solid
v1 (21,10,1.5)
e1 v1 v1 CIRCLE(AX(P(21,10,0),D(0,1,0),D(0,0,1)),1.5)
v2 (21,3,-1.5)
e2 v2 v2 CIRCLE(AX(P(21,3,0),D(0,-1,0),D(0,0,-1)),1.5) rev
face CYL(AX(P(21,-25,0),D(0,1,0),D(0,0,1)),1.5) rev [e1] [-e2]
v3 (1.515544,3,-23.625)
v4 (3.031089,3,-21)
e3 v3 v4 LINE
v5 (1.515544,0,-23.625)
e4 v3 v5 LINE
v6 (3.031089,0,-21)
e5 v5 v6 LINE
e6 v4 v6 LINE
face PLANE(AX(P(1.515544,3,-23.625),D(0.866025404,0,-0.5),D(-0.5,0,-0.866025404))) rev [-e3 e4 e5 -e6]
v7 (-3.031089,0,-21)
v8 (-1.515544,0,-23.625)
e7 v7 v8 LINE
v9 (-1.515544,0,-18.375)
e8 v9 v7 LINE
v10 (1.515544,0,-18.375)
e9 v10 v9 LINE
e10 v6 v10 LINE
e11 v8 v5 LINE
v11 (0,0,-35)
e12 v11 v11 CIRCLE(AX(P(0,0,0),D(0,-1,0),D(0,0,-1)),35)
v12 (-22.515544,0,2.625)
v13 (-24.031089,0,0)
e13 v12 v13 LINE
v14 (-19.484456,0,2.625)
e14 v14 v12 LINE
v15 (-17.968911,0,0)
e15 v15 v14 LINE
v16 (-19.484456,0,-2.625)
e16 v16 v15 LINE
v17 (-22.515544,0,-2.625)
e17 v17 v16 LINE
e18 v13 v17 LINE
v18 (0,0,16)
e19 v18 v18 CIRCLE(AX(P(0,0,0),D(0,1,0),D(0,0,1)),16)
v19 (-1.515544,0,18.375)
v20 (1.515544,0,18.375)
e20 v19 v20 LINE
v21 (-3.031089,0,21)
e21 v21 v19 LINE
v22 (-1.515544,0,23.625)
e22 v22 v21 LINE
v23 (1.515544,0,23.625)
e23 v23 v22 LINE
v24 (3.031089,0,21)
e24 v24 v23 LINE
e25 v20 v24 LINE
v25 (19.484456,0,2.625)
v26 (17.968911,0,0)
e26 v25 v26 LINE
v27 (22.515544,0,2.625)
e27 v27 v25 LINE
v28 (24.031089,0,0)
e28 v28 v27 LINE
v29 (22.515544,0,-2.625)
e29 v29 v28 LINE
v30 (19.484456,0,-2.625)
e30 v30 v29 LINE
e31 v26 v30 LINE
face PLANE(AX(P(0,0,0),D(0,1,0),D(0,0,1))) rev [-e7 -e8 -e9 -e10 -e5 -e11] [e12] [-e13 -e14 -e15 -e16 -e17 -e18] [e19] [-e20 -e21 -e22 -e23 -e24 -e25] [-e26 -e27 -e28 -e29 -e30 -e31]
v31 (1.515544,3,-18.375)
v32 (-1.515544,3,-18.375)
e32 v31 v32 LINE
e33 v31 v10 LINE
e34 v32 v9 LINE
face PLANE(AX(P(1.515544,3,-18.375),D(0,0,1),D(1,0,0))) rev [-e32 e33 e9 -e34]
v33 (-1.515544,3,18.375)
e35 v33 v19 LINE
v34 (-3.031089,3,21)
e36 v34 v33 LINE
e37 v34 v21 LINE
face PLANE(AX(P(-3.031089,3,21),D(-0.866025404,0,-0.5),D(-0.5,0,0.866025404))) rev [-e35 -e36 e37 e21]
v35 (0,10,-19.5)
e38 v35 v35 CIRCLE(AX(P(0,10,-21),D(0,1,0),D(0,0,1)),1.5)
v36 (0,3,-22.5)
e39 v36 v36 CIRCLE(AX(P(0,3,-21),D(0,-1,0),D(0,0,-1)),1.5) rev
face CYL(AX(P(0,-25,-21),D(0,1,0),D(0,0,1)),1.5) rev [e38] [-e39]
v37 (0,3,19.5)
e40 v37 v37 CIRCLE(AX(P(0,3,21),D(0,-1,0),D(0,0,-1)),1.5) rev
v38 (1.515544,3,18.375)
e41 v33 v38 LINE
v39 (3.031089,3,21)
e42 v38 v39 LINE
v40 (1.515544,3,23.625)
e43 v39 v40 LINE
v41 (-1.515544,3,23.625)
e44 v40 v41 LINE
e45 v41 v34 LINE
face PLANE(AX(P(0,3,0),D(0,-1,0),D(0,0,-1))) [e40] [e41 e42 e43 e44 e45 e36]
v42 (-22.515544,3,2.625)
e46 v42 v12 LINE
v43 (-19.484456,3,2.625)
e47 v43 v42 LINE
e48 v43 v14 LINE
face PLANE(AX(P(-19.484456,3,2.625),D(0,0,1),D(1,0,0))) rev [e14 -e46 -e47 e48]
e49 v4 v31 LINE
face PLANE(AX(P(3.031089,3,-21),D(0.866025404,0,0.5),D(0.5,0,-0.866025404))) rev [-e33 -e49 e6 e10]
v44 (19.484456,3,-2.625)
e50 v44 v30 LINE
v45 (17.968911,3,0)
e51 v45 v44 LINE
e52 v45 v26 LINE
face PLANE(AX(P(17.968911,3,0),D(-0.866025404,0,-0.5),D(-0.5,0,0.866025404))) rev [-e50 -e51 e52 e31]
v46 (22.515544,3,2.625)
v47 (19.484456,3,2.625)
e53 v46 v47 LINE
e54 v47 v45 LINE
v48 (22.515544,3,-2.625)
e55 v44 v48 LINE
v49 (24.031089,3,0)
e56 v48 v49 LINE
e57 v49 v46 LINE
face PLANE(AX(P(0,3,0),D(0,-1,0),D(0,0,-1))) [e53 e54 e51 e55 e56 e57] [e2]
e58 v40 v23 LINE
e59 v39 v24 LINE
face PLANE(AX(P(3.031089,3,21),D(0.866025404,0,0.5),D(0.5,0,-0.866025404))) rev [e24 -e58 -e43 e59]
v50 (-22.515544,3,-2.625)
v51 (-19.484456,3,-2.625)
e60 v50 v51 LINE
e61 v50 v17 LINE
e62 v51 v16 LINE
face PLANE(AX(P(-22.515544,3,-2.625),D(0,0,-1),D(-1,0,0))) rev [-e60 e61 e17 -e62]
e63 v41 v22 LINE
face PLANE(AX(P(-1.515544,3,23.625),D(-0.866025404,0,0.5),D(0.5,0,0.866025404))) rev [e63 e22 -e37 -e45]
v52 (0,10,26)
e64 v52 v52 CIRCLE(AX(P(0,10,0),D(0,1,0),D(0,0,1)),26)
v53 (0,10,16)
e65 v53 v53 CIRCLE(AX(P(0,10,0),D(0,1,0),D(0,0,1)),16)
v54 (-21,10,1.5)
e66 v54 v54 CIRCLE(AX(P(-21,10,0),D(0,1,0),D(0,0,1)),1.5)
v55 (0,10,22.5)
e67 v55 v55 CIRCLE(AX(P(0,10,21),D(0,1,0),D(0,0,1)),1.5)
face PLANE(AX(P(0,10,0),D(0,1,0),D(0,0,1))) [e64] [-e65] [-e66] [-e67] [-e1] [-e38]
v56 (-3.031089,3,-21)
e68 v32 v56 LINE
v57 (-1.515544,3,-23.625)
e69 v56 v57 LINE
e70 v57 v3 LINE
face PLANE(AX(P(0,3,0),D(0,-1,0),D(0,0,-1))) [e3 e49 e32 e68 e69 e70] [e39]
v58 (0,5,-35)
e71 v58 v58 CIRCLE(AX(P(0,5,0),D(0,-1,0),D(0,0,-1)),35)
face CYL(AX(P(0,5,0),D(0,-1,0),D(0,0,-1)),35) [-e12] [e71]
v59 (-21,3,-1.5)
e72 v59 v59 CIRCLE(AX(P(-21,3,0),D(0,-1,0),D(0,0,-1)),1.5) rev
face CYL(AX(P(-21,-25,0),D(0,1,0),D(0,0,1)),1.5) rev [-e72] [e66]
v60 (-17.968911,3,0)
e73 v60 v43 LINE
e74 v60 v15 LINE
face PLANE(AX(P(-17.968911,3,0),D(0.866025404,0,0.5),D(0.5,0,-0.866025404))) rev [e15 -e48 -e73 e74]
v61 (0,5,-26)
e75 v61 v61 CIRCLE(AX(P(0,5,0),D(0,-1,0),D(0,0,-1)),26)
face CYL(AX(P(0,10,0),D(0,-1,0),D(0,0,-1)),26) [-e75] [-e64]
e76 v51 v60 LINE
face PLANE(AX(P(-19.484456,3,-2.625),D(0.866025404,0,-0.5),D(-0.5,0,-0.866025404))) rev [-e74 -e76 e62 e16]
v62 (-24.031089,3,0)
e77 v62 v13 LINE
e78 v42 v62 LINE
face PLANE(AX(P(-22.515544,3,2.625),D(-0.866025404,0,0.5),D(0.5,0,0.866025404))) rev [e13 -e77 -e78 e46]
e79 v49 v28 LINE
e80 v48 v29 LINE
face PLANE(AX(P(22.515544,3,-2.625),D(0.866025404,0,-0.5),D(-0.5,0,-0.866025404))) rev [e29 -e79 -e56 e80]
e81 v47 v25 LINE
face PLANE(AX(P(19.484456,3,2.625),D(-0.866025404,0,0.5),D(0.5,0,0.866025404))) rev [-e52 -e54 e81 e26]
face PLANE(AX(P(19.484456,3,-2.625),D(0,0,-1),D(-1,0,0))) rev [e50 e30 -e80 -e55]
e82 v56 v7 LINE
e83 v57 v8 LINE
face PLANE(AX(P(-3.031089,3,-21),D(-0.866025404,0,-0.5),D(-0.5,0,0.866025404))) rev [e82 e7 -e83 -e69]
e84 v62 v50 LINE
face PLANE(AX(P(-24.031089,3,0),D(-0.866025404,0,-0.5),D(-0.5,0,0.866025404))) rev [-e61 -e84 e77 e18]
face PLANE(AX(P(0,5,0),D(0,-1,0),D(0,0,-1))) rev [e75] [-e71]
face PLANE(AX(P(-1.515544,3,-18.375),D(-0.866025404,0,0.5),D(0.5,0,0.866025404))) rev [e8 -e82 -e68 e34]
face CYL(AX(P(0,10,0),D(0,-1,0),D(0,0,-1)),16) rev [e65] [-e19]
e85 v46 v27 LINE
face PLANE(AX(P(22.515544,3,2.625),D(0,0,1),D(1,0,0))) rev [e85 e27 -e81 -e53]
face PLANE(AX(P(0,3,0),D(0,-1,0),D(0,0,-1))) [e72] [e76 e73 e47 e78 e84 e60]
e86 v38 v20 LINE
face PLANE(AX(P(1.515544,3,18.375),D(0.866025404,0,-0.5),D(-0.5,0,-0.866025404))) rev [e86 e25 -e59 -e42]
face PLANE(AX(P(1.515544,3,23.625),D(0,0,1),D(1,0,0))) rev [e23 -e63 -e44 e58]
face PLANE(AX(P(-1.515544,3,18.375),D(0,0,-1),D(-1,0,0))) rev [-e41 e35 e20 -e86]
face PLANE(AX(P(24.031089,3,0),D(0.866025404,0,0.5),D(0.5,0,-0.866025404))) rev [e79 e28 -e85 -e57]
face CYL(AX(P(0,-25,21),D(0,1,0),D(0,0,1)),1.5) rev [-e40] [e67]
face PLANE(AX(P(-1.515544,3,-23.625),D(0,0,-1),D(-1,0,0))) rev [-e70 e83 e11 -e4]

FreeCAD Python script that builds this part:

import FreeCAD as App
import Part
import Sketcher
from FreeCAD import Vector
Q = App.Units.Quantity


def add_polygon(sketch, points):
    """Adds a closed chain of lines whose ends are joined by coincident constraints."""
    first, n = sketch.GeometryCount, len(points)
    for a, b in zip(points, points[1:] + points[:1]):
        sketch.addGeometry(Part.LineSegment(App.Vector(*a, 0), App.Vector(*b, 0)), False)
    for i in range(n):
        sketch.addConstraint(Sketcher.Constraint("Coincident", first + i, 2, first + (i + 1) % n, 1))

doc = App.newDocument("Part")
body = doc.addObject("PartDesign::Body", "Body")

sketch1 = doc.addObject("Sketcher::SketchObject", "Sketch")
body.addObject(sketch1)
sketch1.AttachmentSupport = (doc.XZ_Plane, [""])
sketch1.MapMode = "FlatFace"
sketch1.addGeometry([
    Part.Circle(Vector(0, 0, 0), Vector(0, 0, 1), 26),
    Part.Circle(Vector(0, 0, 0), Vector(0, 0, 1), 16),
], False)
sketch1.addConstraint([
    Sketcher.Constraint("Coincident", 0, 3, -1, 1),
    Sketcher.Constraint("Coincident", 1, 3, -1, 1),
    Sketcher.Constraint("Diameter", 0, Q("52 mm")),
    Sketcher.Constraint("Diameter", 1, Q("32 mm")),
])
pad1 = doc.addObject("PartDesign::Pad", "Pad")
body.addObject(pad1)
pad1.Profile = sketch1
pad1.Length = 10
pad1.Reversed = True

sketch2 = doc.addObject("Sketcher::SketchObject", "Sketch001")
body.addObject(sketch2)
sketch2.AttachmentSupport = (doc.XZ_Plane, [""])
sketch2.MapMode = "FlatFace"
sketch2.addGeometry(Part.Circle(Vector(0, 0, 0), Vector(0, 0, 1), 35), False)
sketch2.addConstraint([
    Sketcher.Constraint("Coincident", 0, 3, -1, 1),
    Sketcher.Constraint("Diameter", 0, Q("70 mm")),
])
pad2 = doc.addObject("PartDesign::Pad", "Pad001")
body.addObject(pad2)
pad2.Profile = sketch2
pad2.Length = 5
pad2.Reversed = True

sketch3 = doc.addObject("Sketcher::SketchObject", "Sketch002")
body.addObject(sketch3)
sketch3.AttachmentSupport = (doc.XZ_Plane, [""])
sketch3.MapMode = "FlatFace"
sketch3.AttachmentOffset = App.Placement(Vector(0, 0, -5), App.Rotation())
sketch3.addGeometry(Part.Circle(Vector(0, 0, 0), Vector(0, 0, 1), 16), False)
sketch3.addConstraint([
    Sketcher.Constraint("Coincident", 0, 3, -1, 1),
    Sketcher.Constraint("Diameter", 0, Q("32 mm")),
])
pocket1 = doc.addObject("PartDesign::Pocket", "Pocket")
body.addObject(pocket1)
pocket1.Profile = sketch3
pocket1.Length = 5
pocket1.Reversed = True

sketch4 = doc.addObject("Sketcher::SketchObject", "Sketch003")
body.addObject(sketch4)
sketch4.AttachmentSupport = (doc.XZ_Plane, [""])
sketch4.MapMode = "FlatFace"
sketch4.AttachmentOffset = App.Placement(Vector(0, 0, -10), App.Rotation())
sketch4.addGeometry([
    Part.Circle(Vector(-21, 0, 0), Vector(0, 0, 1), 1.5),
    Part.Circle(Vector(21, 0, 0), Vector(0, 0, 1), 1.5),
    Part.Circle(Vector(0, 21, 0), Vector(0, 0, 1), 1.5),
    Part.Circle(Vector(0, -21, 0), Vector(0, 0, 1), 1.5),
], False)
sketch4.addConstraint([
    Sketcher.Constraint("Equal", 0, 1),
    Sketcher.Constraint("Equal", 1, 2),
    Sketcher.Constraint("Equal", 2, 3),
    Sketcher.Constraint("Symmetric", 0, 3, 1, 3, -1, 1),
    Sketcher.Constraint("Symmetric", 2, 3, 3, 3, -1, 1),
    Sketcher.Constraint("PointOnObject", 0, 3, -1),
    Sketcher.Constraint("PointOnObject", 2, 3, -2),
    Sketcher.Constraint("Diameter", 0, Q("3 mm")),
    Sketcher.Constraint("DistanceX", 0, 3, -1, 1, Q("21 mm")),
    Sketcher.Constraint("DistanceY", -1, 1, 2, 3, Q("21 mm")),
])
pocket2 = doc.addObject("PartDesign::Pocket", "Pocket001")
body.addObject(pocket2)
pocket2.Profile = sketch4
pocket2.Length = 35
pocket2.Reversed = True

sketch5 = doc.addObject("Sketcher::SketchObject", "Sketch004")
body.addObject(sketch5)
sketch5.AttachmentSupport = (doc.XZ_Plane, [""])
sketch5.MapMode = "FlatFace"
add_polygon(sketch5, [(24, 0), (22.5, 2.6), (19.5, 2.6), (18, 0), (19.5, -2.6), (22.5, -2.6)])
add_polygon(sketch5, [(3, -21), (1.5, -18.4), (-1.5, -18.4), (-3, -21), (-1.5, -23.6), (1.5, -23.6)])
add_polygon(sketch5, [(-18, 0), (-19.5, 2.6), (-22.5, 2.6), (-24, 0), (-22.5, -2.6), (-19.5, -2.6)])
add_polygon(sketch5, [(3, 21), (1.5, 23.6), (-1.5, 23.6), (-3, 21), (-1.5, 18.4), (1.5, 18.4)])
sketch5.addConstraint([
    Sketcher.Constraint("Horizontal", 1),
    Sketcher.Constraint("Horizontal", 4),
    Sketcher.Constraint("Horizontal", 7),
    Sketcher.Constraint("Horizontal", 10),
    Sketcher.Constraint("Horizontal", 13),
    Sketcher.Constraint("Horizontal", 16),
    Sketcher.Constraint("Horizontal", 19),
    Sketcher.Constraint("Horizontal", 22),
    Sketcher.Constraint("Symmetric", 3, 2, 12, 2, -1, 1),
    Sketcher.Constraint("Symmetric", 5, 2, 14, 2, -1, 1),
    Sketcher.Constraint("Symmetric", 0, 2, 15, 2, -1, 1),
    Sketcher.Constraint("Symmetric", 2, 2, 17, 2, -1, 1),
    Sketcher.Constraint("Symmetric", 9, 2, 18, 2, -1, 1),
    Sketcher.Constraint("Symmetric", 11, 2, 20, 2, -1, 1),
    Sketcher.Constraint("Symmetric", 6, 2, 21, 2, -1, 1),
    Sketcher.Constraint("Symmetric", 8, 2, 23, 2, -1, 1),
    Sketcher.Constraint("Symmetric", 8, 2, 11, 2, -2),
    Sketcher.Constraint("Symmetric", 1, 2, 12, 2, -2),
    Sketcher.Constraint("PointOnObject", 2, 2, -1),
    Sketcher.Constraint("PointOnObject", 5, 2, -1),
    Sketcher.Constraint("Parallel", 0, 3),
    Sketcher.Constraint("Parallel", 2, 5),
    Sketcher.Constraint("Parallel", 3, 6),
    Sketcher.Constraint("Parallel", 5, 8),
    Sketcher.Constraint("Parallel", 6, 9),
    Sketcher.Constraint("Parallel", 8, 11),
    Sketcher.Constraint("Parallel", 11, 14),
    Sketcher.Constraint("Parallel", 14, 17),
    Sketcher.Constraint("Parallel", 17, 20),
    Sketcher.Constraint("Parallel", 20, 23),
    Sketcher.Constraint("Vertical", 7, 2, 9, 2),
    Sketcher.Constraint("Equal", 4, 7),
    Sketcher.Constraint("Equal", 5, 6),
    Sketcher.Constraint("Angle", 0, Q("120 deg")),
    Sketcher.Constraint("DistanceY", 8, 2, -1, 1, Q("21 mm")),
    Sketcher.Constraint("DistanceX", 6, 2, 4, 2, Q("21 mm")),
    Sketcher.Constraint("DistanceY", 3, 2, 1, 2, Q("5.25 mm")),
    Sketcher.Constraint("DistanceX", 1, 2, 1, 1, Q("3.031089 mm")),
])
pocket3 = doc.addObject("PartDesign::Pocket", "Pocket002")
body.addObject(pocket3)
pocket3.Profile = sketch5
pocket3.Length = 3

doc.recompute()
